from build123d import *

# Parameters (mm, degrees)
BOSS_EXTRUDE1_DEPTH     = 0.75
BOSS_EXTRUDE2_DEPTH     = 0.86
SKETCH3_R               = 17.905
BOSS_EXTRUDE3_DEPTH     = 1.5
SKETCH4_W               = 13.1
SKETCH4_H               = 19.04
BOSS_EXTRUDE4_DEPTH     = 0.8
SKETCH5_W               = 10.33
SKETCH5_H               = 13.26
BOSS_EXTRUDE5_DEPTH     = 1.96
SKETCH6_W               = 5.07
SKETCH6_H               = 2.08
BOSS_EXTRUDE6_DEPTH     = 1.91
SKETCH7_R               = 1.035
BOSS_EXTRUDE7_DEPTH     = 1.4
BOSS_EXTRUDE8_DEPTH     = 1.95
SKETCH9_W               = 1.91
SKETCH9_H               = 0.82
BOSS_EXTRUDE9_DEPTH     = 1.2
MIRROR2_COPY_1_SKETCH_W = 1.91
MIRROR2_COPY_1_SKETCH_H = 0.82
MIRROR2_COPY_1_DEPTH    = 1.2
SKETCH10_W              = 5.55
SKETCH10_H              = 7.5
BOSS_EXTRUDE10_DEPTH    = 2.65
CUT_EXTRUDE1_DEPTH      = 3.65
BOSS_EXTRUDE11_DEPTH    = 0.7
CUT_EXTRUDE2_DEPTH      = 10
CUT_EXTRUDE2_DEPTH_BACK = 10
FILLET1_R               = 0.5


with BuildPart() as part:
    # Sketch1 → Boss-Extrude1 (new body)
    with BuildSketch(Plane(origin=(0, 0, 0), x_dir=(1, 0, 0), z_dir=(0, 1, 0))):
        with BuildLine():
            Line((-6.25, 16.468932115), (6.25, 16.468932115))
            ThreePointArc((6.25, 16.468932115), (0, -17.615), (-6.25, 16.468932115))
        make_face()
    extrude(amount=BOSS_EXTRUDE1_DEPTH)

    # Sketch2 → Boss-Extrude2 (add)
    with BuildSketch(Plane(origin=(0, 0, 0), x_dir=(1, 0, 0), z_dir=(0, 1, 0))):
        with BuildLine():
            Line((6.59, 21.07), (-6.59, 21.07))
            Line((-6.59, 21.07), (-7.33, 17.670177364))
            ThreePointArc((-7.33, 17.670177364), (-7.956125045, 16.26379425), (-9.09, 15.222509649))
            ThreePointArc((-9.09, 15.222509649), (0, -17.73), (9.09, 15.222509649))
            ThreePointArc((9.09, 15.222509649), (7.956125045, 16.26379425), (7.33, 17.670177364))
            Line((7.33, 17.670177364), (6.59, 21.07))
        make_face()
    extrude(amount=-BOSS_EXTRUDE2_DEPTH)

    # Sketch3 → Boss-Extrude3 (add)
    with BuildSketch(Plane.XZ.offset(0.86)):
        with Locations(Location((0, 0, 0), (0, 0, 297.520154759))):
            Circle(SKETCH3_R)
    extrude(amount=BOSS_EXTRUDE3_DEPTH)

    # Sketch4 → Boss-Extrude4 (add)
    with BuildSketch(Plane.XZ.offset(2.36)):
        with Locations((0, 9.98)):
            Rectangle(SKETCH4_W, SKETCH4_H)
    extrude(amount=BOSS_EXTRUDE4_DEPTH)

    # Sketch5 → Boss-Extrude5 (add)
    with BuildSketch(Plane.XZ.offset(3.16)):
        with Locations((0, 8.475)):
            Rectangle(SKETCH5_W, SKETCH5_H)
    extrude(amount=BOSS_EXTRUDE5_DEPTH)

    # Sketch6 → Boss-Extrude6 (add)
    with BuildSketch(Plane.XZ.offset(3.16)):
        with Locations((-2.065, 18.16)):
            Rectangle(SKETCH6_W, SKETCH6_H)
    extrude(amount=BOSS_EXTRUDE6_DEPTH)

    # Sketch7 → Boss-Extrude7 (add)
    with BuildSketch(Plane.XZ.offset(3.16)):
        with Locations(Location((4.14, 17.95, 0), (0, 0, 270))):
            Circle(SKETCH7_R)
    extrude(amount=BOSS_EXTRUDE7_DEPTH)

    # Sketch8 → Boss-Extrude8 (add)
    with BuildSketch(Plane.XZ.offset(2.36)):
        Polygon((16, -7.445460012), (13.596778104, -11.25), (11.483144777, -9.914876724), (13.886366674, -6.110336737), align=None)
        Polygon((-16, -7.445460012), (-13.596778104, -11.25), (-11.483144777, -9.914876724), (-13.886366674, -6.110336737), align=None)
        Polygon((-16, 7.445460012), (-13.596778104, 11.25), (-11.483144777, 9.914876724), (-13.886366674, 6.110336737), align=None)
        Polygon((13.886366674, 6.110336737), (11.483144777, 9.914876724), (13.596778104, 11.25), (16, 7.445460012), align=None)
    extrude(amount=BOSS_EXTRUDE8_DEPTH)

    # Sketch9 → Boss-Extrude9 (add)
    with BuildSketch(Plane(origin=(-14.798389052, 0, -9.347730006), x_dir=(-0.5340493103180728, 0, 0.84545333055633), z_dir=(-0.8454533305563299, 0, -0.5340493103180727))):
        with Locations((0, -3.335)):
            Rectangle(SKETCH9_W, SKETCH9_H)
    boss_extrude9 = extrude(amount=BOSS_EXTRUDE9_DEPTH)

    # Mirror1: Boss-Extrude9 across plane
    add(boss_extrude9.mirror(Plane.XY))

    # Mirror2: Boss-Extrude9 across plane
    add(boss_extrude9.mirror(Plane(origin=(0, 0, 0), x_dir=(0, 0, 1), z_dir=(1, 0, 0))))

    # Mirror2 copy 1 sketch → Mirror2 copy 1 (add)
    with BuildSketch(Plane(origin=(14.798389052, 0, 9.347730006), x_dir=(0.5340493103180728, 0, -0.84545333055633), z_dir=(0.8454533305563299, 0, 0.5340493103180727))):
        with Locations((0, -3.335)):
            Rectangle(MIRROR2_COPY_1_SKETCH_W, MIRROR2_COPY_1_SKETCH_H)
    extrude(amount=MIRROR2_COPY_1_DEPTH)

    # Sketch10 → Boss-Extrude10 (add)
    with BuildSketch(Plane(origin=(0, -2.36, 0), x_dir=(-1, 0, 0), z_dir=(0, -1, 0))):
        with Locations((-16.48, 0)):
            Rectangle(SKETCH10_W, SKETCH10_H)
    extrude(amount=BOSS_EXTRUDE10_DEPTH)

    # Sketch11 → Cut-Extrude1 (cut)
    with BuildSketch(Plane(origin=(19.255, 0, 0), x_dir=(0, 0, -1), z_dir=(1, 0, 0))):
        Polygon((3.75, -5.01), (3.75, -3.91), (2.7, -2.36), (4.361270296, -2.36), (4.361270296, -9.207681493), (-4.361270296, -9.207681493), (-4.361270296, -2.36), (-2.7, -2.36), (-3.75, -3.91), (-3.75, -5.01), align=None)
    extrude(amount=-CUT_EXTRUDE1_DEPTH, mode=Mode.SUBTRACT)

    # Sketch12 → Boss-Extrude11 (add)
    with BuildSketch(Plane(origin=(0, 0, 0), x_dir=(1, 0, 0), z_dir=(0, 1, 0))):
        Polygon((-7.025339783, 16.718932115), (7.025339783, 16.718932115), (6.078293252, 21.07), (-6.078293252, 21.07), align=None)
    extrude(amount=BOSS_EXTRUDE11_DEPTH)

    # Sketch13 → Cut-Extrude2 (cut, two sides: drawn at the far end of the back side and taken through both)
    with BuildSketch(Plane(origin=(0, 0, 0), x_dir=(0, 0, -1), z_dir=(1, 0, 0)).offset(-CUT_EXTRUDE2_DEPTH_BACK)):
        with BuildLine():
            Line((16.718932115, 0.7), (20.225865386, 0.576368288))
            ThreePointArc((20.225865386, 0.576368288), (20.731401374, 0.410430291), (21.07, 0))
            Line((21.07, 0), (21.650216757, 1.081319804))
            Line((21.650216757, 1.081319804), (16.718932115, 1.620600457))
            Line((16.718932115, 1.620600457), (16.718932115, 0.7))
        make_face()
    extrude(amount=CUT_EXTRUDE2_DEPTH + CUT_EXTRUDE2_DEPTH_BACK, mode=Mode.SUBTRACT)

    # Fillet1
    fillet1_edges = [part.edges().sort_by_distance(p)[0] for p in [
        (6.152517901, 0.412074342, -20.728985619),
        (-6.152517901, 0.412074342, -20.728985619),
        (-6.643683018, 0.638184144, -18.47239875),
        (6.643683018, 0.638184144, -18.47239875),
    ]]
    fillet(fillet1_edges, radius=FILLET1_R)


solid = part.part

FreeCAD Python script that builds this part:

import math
import FreeCAD as App
import Part
import Sketcher
from FreeCAD import Vector


def edges_at(feature, points):
    """Names of the edges that pass closest to the given points."""
    edges = feature.Shape.Edges
    near = lambda p: min(range(len(edges)), key=lambda i: edges[i].distToShape(Part.Vertex(*p))[0])
    return sorted({f"Edge{near(p) + 1}" for p in points})


def add_polygon(sketch, points):
    """Adds a closed chain of lines whose ends are joined by coincident constraints."""
    first, n = sketch.GeometryCount, len(points)
    for a, b in zip(points, points[1:] + points[:1]):
        sketch.addGeometry(Part.LineSegment(App.Vector(*a, 0), App.Vector(*b, 0)), False)
    for i in range(n):
        sketch.addConstraint(Sketcher.Constraint("Coincident", first + i, 2, first + (i + 1) % n, 1))

doc = App.newDocument("Part")
body = doc.addObject("PartDesign::Body", "Body")

# Sketch on XZ plane
sketch1 = body.newObject("Sketcher::SketchObject", "Sketch")
sketch1.AttachmentSupport = (doc.getObject("XZ_Plane"), [""])
sketch1.MapMode = "FlatFace"
sketch1.addGeometry(Part.LineSegment(Vector(6.25, -16.468932, 0), Vector(-6.25, -16.468932, 0)), False)
sketch1.addGeometry(Part.ArcOfCircle(Part.Circle(Vector(0, 0, 0), Vector(0, 0, 1), 17.615), math.radians(-69.218124), math.radians(249.218124)), False)
sketch1.addConstraint(Sketcher.Constraint("Coincident", 0, 1, 1, 1))
sketch1.addConstraint(Sketcher.Constraint("Coincident", 1, 2, 0, 2))
sketch1.addConstraint(Sketcher.Constraint("Horizontal", 0))
sketch1.addConstraint(Sketcher.Constraint("Coincident", 1, 3, -1, 1))
sketch1.addConstraint(Sketcher.Constraint("DistanceX", 0, 2, 0, 1, 12.5))
sketch1.addConstraint(Sketcher.Constraint("Radius", 1, 17.615))
pad1 = body.newObject("PartDesign::Pad", "Pad")
pad1.Profile = sketch1
pad1.Length = 0.75
pad1.Reversed = True

# Sketch on XZ plane
sketch2 = body.newObject("Sketcher::SketchObject", "Sketch001")
sketch2.AttachmentSupport = (doc.getObject("XZ_Plane"), [""])
sketch2.MapMode = "FlatFace"
sketch2.addGeometry(Part.LineSegment(Vector(6.59, -21.07, 0), Vector(-6.59, -21.07, 0)), False)
sketch2.addGeometry(Part.LineSegment(Vector(-6.59, -21.07, 0), Vector(-7.33, -17.670177, 0)), False)
sketch2.addGeometry(Part.ArcOfCircle(Part.Circle(Vector(-11.03288, -18.47614, 0), Vector(0, 0, 1), 3.789577), math.radians(12.279386), math.radians(59.1568)), False)
sketch2.addGeometry(Part.ArcOfCircle(Part.Circle(Vector(0, 0, 0), Vector(0, 0, 1), 17.73), math.radians(-59.1568), math.radians(239.1568)), False)
sketch2.addGeometry(Part.ArcOfCircle(Part.Circle(Vector(11.03288, -18.47614, 0), Vector(0, 0, 1), 3.789577), math.radians(120.8432), math.radians(167.720614)), False)
sketch2.addGeometry(Part.LineSegment(Vector(7.33, -17.670177, 0), Vector(6.59, -21.07, 0)), False)
sketch2.addConstraint(Sketcher.Constraint("Coincident", 0, 2, 1, 1))
sketch2.addConstraint(Sketcher.Constraint("Tangent", 1, 2, 2, 1))
sketch2.addConstraint(Sketcher.Constraint("Tangent", 2, 2, 3, 2))
sketch2.addConstraint(Sketcher.Constraint("Tangent", 3, 1, 4, 1))
sketch2.addConstraint(Sketcher.Constraint("Tangent", 4, 2, 5, 1))
sketch2.addConstraint(Sketcher.Constraint("Coincident", 5, 2, 0, 1))
sketch2.addConstraint(Sketcher.Constraint("Horizontal", 0))
sketch2.addConstraint(Sketcher.Constraint("Coincident", 3, 3, -1, 1))
sketch2.addConstraint(Sketcher.Constraint("Equal", 2, 4))
sketch2.addConstraint(Sketcher.Constraint("Symmetric", 1, 2, 4, 2, -2))
sketch2.addConstraint(Sketcher.Constraint("Radius", 3, 17.73))
sketch2.addConstraint(Sketcher.Constraint("DistanceX", 0, 2, 0, 1, 13.18))
sketch2.addConstraint(Sketcher.Constraint("DistanceX", 2, 2, 0, 2, 2.5))
sketch2.addConstraint(Sketcher.Constraint("DistanceY", 0, 2, -1, 1, 21.07))
sketch2.addConstraint(Sketcher.Constraint("DistanceX", 1, 2, -1, 1, 7.33))
pad2 = body.newObject("PartDesign::Pad", "Pad001")
pad2.Profile = sketch2
pad2.Length = 0.86

# Sketch on XZ plane
sketch3 = body.newObject("Sketcher::SketchObject", "Sketch002")
sketch3.AttachmentSupport = (doc.getObject("XZ_Plane"), [""])
sketch3.MapMode = "FlatFace"
sketch3.AttachmentOffset = App.Placement(Vector(0, 0, 0.86), App.Rotation())
sketch3.addGeometry(Part.Circle(Vector(0, 0, 0), Vector(0, 0, 1), 17.905), False)
sketch3.addConstraint(Sketcher.Constraint("Coincident", 0, 3, -1, 1))
sketch3.addConstraint(Sketcher.Constraint("Diameter", 0, 35.81))
pad3 = body.newObject("PartDesign::Pad", "Pad002")
pad3.Profile = sketch3
pad3.Length = 1.5

# Sketch on XZ plane
sketch4 = body.newObject("Sketcher::SketchObject", "Sketch003")
sketch4.AttachmentSupport = (doc.getObject("XZ_Plane"), [""])
sketch4.MapMode = "FlatFace"
sketch4.AttachmentOffset = App.Placement(Vector(0, 0, 2.36), App.Rotation())
add_polygon(sketch4, [(-6.55, 19.5), (-6.55, 0.46), (6.55, 0.46), (6.55, 19.5)])  # lines 0-3
sketch4.addConstraint(Sketcher.Constraint("Vertical", 0))
sketch4.addConstraint(Sketcher.Constraint("Horizontal", 1))
sketch4.addConstraint(Sketcher.Constraint("Vertical", 2))
sketch4.addConstraint(Sketcher.Constraint("Horizontal", 3))
sketch4.addConstraint(Sketcher.Constraint("DistanceX", 1, 1, 1, 2, 13.1))
sketch4.addConstraint(Sketcher.Constraint("DistanceY", 0, 2, 0, 1, 19.04))
sketch4.addConstraint(Sketcher.Constraint("DistanceY", -1, 1, 2, 2, 19.5))
sketch4.addConstraint(Sketcher.Constraint("DistanceX", 0, 2, -1, 1, 6.55))
pad4 = body.newObject("PartDesign::Pad", "Pad003")
pad4.Profile = sketch4
pad4.Length = 0.8

# Sketch on XZ plane
sketch5 = body.newObject("Sketcher::SketchObject", "Sketch004")
sketch5.AttachmentSupport = (doc.getObject("XZ_Plane"), [""])
sketch5.MapMode = "FlatFace"
sketch5.AttachmentOffset = App.Placement(Vector(0, 0, 3.16), App.Rotation())
add_polygon(sketch5, [(-5.165, 15.105), (-5.165, 1.845), (5.165, 1.845), (5.165, 15.105)])  # lines 0-3
sketch5.addConstraint(Sketcher.Constraint("Vertical", 0))
sketch5.addConstraint(Sketcher.Constraint("Horizontal", 1))
sketch5.addConstraint(Sketcher.Constraint("Vertical", 2))
sketch5.addConstraint(Sketcher.Constraint("Horizontal", 3))
sketch5.addConstraint(Sketcher.Constraint("DistanceX", 1, 1, 1, 2, 10.33))
sketch5.addConstraint(Sketcher.Constraint("DistanceY", 0, 2, 0, 1, 13.26))
sketch5.addConstraint(Sketcher.Constraint("DistanceX", 0, 2, -1, 1, 5.165))
sketch5.addConstraint(Sketcher.Constraint("DistanceY", -1, 1, 0, 2, 1.845))
pad5 = body.newObject("PartDesign::Pad", "Pad004")
pad5.Profile = sketch5
pad5.Length = 1.96

# Sketch on XZ plane
sketch6 = body.newObject("Sketcher::SketchObject", "Sketch005")
sketch6.AttachmentSupport = (doc.getObject("XZ_Plane"), [""])
sketch6.MapMode = "FlatFace"
sketch6.AttachmentOffset = App.Placement(Vector(0, 0, 3.16), App.Rotation())
add_polygon(sketch6, [(-4.6, 19.2), (-4.6, 17.12), (0.47, 17.12), (0.47, 19.2)])  # lines 0-3
sketch6.addConstraint(Sketcher.Constraint("Vertical", 0))
sketch6.addConstraint(Sketcher.Constraint("Horizontal", 1))
sketch6.addConstraint(Sketcher.Constraint("Vertical", 2))
sketch6.addConstraint(Sketcher.Constraint("Horizontal", 3))
sketch6.addConstraint(Sketcher.Constraint("DistanceX", 1, 1, 1, 2, 5.07))
sketch6.addConstraint(Sketcher.Constraint("DistanceY", 0, 2, 0, 1, 2.08))
sketch6.addConstraint(Sketcher.Constraint("DistanceX", 0, 2, -1, 1, 4.6))
sketch6.addConstraint(Sketcher.Constraint("DistanceY", -1, 1, 2, 2, 19.2))
pad6 = body.newObject("PartDesign::Pad", "Pad005")
pad6.Profile = sketch6
pad6.Length = 1.91

# Sketch on XZ plane
sketch7 = body.newObject("Sketcher::SketchObject", "Sketch006")
sketch7.AttachmentSupport = (doc.getObject("XZ_Plane"), [""])
sketch7.MapMode = "FlatFace"
sketch7.AttachmentOffset = App.Placement(Vector(0, 0, 3.16), App.Rotation())
sketch7.addGeometry(Part.Circle(Vector(4.14, 17.95, 0), Vector(0, 0, 1), 1.035), False)
sketch7.addConstraint(Sketcher.Constraint("Diameter", 0, 2.07))
sketch7.addConstraint(Sketcher.Constraint("DistanceX", -1, 1, 0, 3, 4.14))
sketch7.addConstraint(Sketcher.Constraint("DistanceY", -1, 1, 0, 3, 17.95))
pad7 = body.newObject("PartDesign::Pad", "Pad006")
pad7.Profile = sketch7
pad7.Length = 1.4

# Sketch on XZ plane
sketch8 = body.newObject("Sketcher::SketchObject", "Sketch007")
sketch8.AttachmentSupport = (doc.getObject("XZ_Plane"), [""])
sketch8.MapMode = "FlatFace"
sketch8.AttachmentOffset = App.Placement(Vector(0, 0, 2.36), App.Rotation())
add_polygon(sketch8, [(13.596778, -11.25), (16, -7.44546), (13.886367, -6.110337), (11.483145, -9.914877)])  # lines 0-3
add_polygon(sketch8, [(-16, -7.44546), (-13.596778, -11.25), (-11.483145, -9.914877), (-13.886367, -6.110337)])  # lines 4-7
add_polygon(sketch8, [(-13.596778, 11.25), (-16, 7.44546), (-13.886367, 6.110337), (-11.483145, 9.914877)])  # lines 8-11
add_polygon(sketch8, [(11.483145, 9.914877), (13.886367, 6.110337), (16, 7.44546), (13.596778, 11.25)])  # lines 12-15
sketch8.addConstraint(Sketcher.Constraint("Symmetric", 0, 2, 8, 2, -1, 1))
sketch8.addConstraint(Sketcher.Constraint("Symmetric", 1, 2, 9, 2, -1, 1))
sketch8.addConstraint(Sketcher.Constraint("Symmetric", 2, 2, 10, 2, -1, 1))
sketch8.addConstraint(Sketcher.Constraint("Symmetric", 3, 2, 11, 2, -1, 1))
sketch8.addConstraint(Sketcher.Constraint("Symmetric", 6, 2, 12, 2, -1, 1))
sketch8.addConstraint(Sketcher.Constraint("Symmetric", 7, 2, 13, 2, -1, 1))
sketch8.addConstraint(Sketcher.Constraint("Symmetric", 4, 2, 14, 2, -1, 1))
sketch8.addConstraint(Sketcher.Constraint("Symmetric", 5, 2, 15, 2, -1, 1))
sketch8.addConstraint(Sketcher.Constraint("Symmetric", 3, 2, 4, 2, -2))
sketch8.addConstraint(Sketcher.Constraint("Symmetric", 2, 2, 5, 2, -2))
sketch8.addConstraint(Sketcher.Constraint("Symmetric", 1, 2, 6, 2, -2))
sketch8.addConstraint(Sketcher.Constraint("Symmetric", 0, 2, 7, 2, -2))
sketch8.addConstraint(Sketcher.Constraint("Perpendicular", 0, 1))
sketch8.addConstraint(Sketcher.Constraint("Perpendicular", 1, 2))
sketch8.addConstraint(Sketcher.Constraint("Perpendicular", 2, 3))
sketch8.addConstraint(Sketcher.Constraint("DistanceX", -1, 1, 0, 2, 16.0))
sketch8.addConstraint(Sketcher.Constraint("Distance", 0, 4.5))
sketch8.addConstraint(Sketcher.Constraint("Distance", 1, 2.5))
sketch8.addConstraint(Sketcher.Constraint("DistanceY", 3, 2, -1, 1, 11.25))
sketch8.addConstraint(Sketcher.Constraint("DistanceY", 0, 2, -1, 1, 7.44546))
pad8 = body.newObject("PartDesign::Pad", "Pad007")
pad8.Profile = sketch8
pad8.Length = 1.95

# Sketch on an angled plane
sketch9 = body.newObject("Sketcher::SketchObject", "Sketch008")
sketch9.Placement = App.Placement(Vector(-14.798389, 0, -9.34773), App.Rotation(Vector(-0.53404931, 0, 0.845453331), Vector(0, 1, 0), Vector(-0.845453331, 0, -0.53404931), "ZXY"))
add_polygon(sketch9, [(-0.955, -2.925), (-0.955, -3.745), (0.955, -3.745), (0.955, -2.925)])  # lines 0-3
sketch9.addConstraint(Sketcher.Constraint("Vertical", 0))
sketch9.addConstraint(Sketcher.Constraint("Horizontal", 1))
sketch9.addConstraint(Sketcher.Constraint("Vertical", 2))
sketch9.addConstraint(Sketcher.Constraint("Horizontal", 3))
sketch9.addConstraint(Sketcher.Constraint("DistanceX", 1, 1, 1, 2, 1.91))
sketch9.addConstraint(Sketcher.Constraint("DistanceY", 0, 2, 0, 1, 0.82))
sketch9.addConstraint(Sketcher.Constraint("DistanceX", 0, 2, -1, 1, 0.955))
sketch9.addConstraint(Sketcher.Constraint("DistanceY", 0, 2, -1, 1, 3.745))
pad9 = body.newObject("PartDesign::Pad", "Pad008")
pad9.Profile = sketch9
pad9.Length = 1.2
doc.recompute()

mirrored = body.newObject("PartDesign::Mirrored", "Mirrored")
mirrored.Originals = [pad9]
mirrored.MirrorPlane = (doc.getObject("XY_Plane"), [""])
body.Tip = mirrored
doc.recompute()

mirrored2 = body.newObject("PartDesign::Mirrored", "Mirrored001")
mirrored2.Originals = [pad9]
mirrored2.MirrorPlane = (doc.getObject("YZ_Plane"), [""])
body.Tip = mirrored2

# Sketch on an angled plane
sketch10 = body.newObject("Sketcher::SketchObject", "Sketch009")
sketch10.Placement = App.Placement(Vector(14.798389, 0, 9.34773), App.Rotation(Vector(0.53404931, 0, -0.845453331), Vector(0, 1, 0), Vector(0.845453331, 0, 0.53404931), "ZXY"))
add_polygon(sketch10, [(-0.955, -2.925), (-0.955, -3.745), (0.955, -3.745), (0.955, -2.925)])  # lines 0-3
sketch10.addConstraint(Sketcher.Constraint("Vertical", 0))
sketch10.addConstraint(Sketcher.Constraint("Horizontal", 1))
sketch10.addConstraint(Sketcher.Constraint("Vertical", 2))
sketch10.addConstraint(Sketcher.Constraint("Horizontal", 3))
sketch10.addConstraint(Sketcher.Constraint("DistanceX", 1, 1, 1, 2, 1.91))
sketch10.addConstraint(Sketcher.Constraint("DistanceY", 0, 2, 0, 1, 0.82))
sketch10.addConstraint(Sketcher.Constraint("DistanceX", 0, 2, -1, 1, 0.955))
sketch10.addConstraint(Sketcher.Constraint("DistanceY", 0, 2, -1, 1, 3.745))
pad10 = body.newObject("PartDesign::Pad", "Pad009")
pad10.Profile = sketch10
pad10.Length = 1.2

# Sketch on XZ plane
sketch11 = body.newObject("Sketcher::SketchObject", "Sketch010")
sketch11.AttachmentSupport = (doc.getObject("XZ_Plane"), [""])
sketch11.MapMode = "FlatFace"
sketch11.AttachmentOffset = App.Placement(Vector(0, 0, 2.36), App.Rotation())
add_polygon(sketch11, [(19.255, -3.75), (19.255, 3.75), (13.705, 3.75), (13.705, -3.75)])  # lines 0-3
sketch11.addConstraint(Sketcher.Constraint("Vertical", 0))
sketch11.addConstraint(Sketcher.Constraint("Horizontal", 1))
sketch11.addConstraint(Sketcher.Constraint("Vertical", 2))
sketch11.addConstraint(Sketcher.Constraint("Horizontal", 3))
sketch11.addConstraint(Sketcher.Constraint("DistanceY", 0, 1, 0, 2, 7.5))
sketch11.addConstraint(Sketcher.Constraint("DistanceX", 1, 2, 1, 1, 5.55))
sketch11.addConstraint(Sketcher.Constraint("DistanceY", -1, 1, 0, 2, 3.75))
sketch11.addConstraint(Sketcher.Constraint("DistanceX", -1, 1, 0, 2, 19.255))
pad11 = body.newObject("PartDesign::Pad", "Pad010")
pad11.Profile = sketch11
pad11.Length = 2.65

# Sketch on YZ plane
sketch12 = body.newObject("Sketcher::SketchObject", "Sketch011")
sketch12.AttachmentSupport = (doc.getObject("YZ_Plane"), [""])
sketch12.MapMode = "FlatFace"
sketch12.AttachmentOffset = App.Placement(Vector(0, 0, 19.255), App.Rotation())
add_polygon(sketch12, [(-3.91, -3.75), (-5.01, -3.75), (-5.01, 3.75), (-3.91, 3.75), (-2.36, 2.7), (-2.36, 4.36127), (-9.207681, 4.36127), (-9.207681, -4.36127), (-2.36, -4.36127), (-2.36, -2.7)])  # lines 0-9
sketch12.addConstraint(Sketcher.Constraint("Horizontal", 0))
sketch12.addConstraint(Sketcher.Constraint("Vertical", 1))
sketch12.addConstraint(Sketcher.Constraint("Horizontal", 2))
sketch12.addConstraint(Sketcher.Constraint("Vertical", 4))
sketch12.addConstraint(Sketcher.Constraint("Horizontal", 5))
sketch12.addConstraint(Sketcher.Constraint("Vertical", 6))
sketch12.addConstraint(Sketcher.Constraint("Horizontal", 7))
sketch12.addConstraint(Sketcher.Constraint("Vertical", 8))
sketch12.addConstraint(Sketcher.Constraint("Symmetric", 4, 2, 7, 2, -1))
sketch12.addConstraint(Sketcher.Constraint("Symmetric", 2, 2, 9, 2, -1))
sketch12.addConstraint(Sketcher.Constraint("Equal", 4, 8))
sketch12.addConstraint(Sketcher.Constraint("DistanceX", 0, 2, 0, 1, 1.1))
sketch12.addConstraint(Sketcher.Constraint("DistanceY", 1, 1, 1, 2, 7.5))
sketch12.addConstraint(Sketcher.Constraint("DistanceY", -1, 1, 3, 2, 2.7))
sketch12.addConstraint(Sketcher.Constraint("DistanceX", 0, 2, -1, 1, 5.01))
sketch12.addConstraint(Sketcher.Constraint("DistanceX", 3, 2, -1, 1, 2.36))
sketch12.addConstraint(Sketcher.Constraint("DistanceX", 5, 2, 5, 1, 6.847681))
sketch12.addConstraint(Sketcher.Constraint("DistanceY", 4, 1, 4, 2, 1.66127))
pocket1 = body.newObject("PartDesign::Pocket", "Pocket")
pocket1.Profile = sketch12
pocket1.Length = 3.65

# Sketch on XZ plane
sketch13 = body.newObject("Sketcher::SketchObject", "Sketch012")
sketch13.AttachmentSupport = (doc.getObject("XZ_Plane"), [""])
sketch13.MapMode = "FlatFace"
add_polygon(sketch13, [(-7.02534, -16.718932), (7.02534, -16.718932), (6.078293, -21.07), (-6.078293, -21.07)])  # lines 0-3
sketch13.addConstraint(Sketcher.Constraint("Horizontal", 0))
sketch13.addConstraint(Sketcher.Constraint("Horizontal", 2))
sketch13.addConstraint(Sketcher.Constraint("Equal", 1, 3))
sketch13.addConstraint(Sketcher.Constraint("DistanceY", 1, 2, -1, 1, 21.07))
sketch13.addConstraint(Sketcher.Constraint("DistanceX", 0, 1, 0, 2, 14.05068))
sketch13.addConstraint(Sketcher.Constraint("Distance", 1, 4.452942))
sketch13.addConstraint(Sketcher.Constraint("DistanceX", 2, 2, 2, 1, 12.156587))
sketch13.addConstraint(Sketcher.Constraint("DistanceX", -1, 1, 0, 2, 7.02534))
pad12 = body.newObject("PartDesign::Pad", "Pad011")
pad12.Profile = sketch13
pad12.Length = 0.7
pad12.Reversed = True

# Sketch on YZ plane
sketch14 = body.newObject("Sketcher::SketchObject", "Sketch013")
sketch14.AttachmentSupport = (doc.getObject("YZ_Plane"), [""])
sketch14.MapMode = "FlatFace"
sketch14.addGeometry(Part.LineSegment(Vector(0.7, -16.718932, 0), Vector(0.576368, -20.225865, 0)), False)
sketch14.addGeometry(Part.ArcOfCircle(Part.Circle(Vector(-0.379308, -20.192174, 0), Vector(0, 0, 1), 0.95627), math.radians(-66.630849), math.radians(-2.019041)), False)
sketch14.addGeometry(Part.LineSegment(Vector(0, -21.07, 0), Vector(1.08132, -21.650217, 0)), False)
sketch14.addGeometry(Part.LineSegment(Vector(1.08132, -21.650217, 0), Vector(1.6206, -16.718932, 0)), False)
sketch14.addGeometry(Part.LineSegment(Vector(1.6206, -16.718932, 0), Vector(0.7, -16.718932, 0)), False)
sketch14.addConstraint(Sketcher.Constraint("Tangent", 0, 2, 1, 2))
sketch14.addConstraint(Sketcher.Constraint("Coincident", 1, 1, 2, 1))
sketch14.addConstraint(Sketcher.Constraint("Coincident", 2, 2, 3, 1))
sketch14.addConstraint(Sketcher.Constraint("Coincident", 3, 2, 4, 1))
sketch14.addConstraint(Sketcher.Constraint("Coincident", 4, 2, 0, 1))
sketch14.addConstraint(Sketcher.Constraint("Horizontal", 4))
sketch14.addConstraint(Sketcher.Constraint("PointOnObject", 1, 1, -2))
sketch14.addConstraint(Sketcher.Constraint("DistanceX", -1, 1, 4, 2, 0.7))
sketch14.addConstraint(Sketcher.Constraint("DistanceY", 1, 1, -1, 1, 21.07))
sketch14.addConstraint(Sketcher.Constraint("Radius", 1, 0.95627))
sketch14.addConstraint(Sketcher.Constraint("DistanceX", 4, 2, 4, 1, 0.9206))
sketch14.addConstraint(Sketcher.Constraint("Distance", 0, 3.509112))
sketch14.addConstraint(Sketcher.Constraint("DistanceX", 1, 3, -1, 1, 0.379308))
sketch14.addConstraint(Sketcher.Constraint("DistanceX", -1, 1, 2, 2, 1.08132))
sketch14.addConstraint(Sketcher.Constraint("DistanceY", 2, 2, 0, 2, 1.424351))
pocket2 = body.newObject("PartDesign::Pocket", "Pocket001")
pocket2.Profile = sketch14
pocket2.Type = "ThroughAll"
pocket2.Midplane = True
doc.recompute()

fillet = body.newObject("PartDesign::Fillet", "Fillet")
fillet.Base = (pocket2, edges_at(pocket2, [
    (6.153, 0.412, -20.729),
    (-6.153, 0.412, -20.729),
    (-6.644, 0.638, -18.472),
    (6.644, 0.638, -18.472),
]))
fillet.Radius = 0.5

doc.recompute()
